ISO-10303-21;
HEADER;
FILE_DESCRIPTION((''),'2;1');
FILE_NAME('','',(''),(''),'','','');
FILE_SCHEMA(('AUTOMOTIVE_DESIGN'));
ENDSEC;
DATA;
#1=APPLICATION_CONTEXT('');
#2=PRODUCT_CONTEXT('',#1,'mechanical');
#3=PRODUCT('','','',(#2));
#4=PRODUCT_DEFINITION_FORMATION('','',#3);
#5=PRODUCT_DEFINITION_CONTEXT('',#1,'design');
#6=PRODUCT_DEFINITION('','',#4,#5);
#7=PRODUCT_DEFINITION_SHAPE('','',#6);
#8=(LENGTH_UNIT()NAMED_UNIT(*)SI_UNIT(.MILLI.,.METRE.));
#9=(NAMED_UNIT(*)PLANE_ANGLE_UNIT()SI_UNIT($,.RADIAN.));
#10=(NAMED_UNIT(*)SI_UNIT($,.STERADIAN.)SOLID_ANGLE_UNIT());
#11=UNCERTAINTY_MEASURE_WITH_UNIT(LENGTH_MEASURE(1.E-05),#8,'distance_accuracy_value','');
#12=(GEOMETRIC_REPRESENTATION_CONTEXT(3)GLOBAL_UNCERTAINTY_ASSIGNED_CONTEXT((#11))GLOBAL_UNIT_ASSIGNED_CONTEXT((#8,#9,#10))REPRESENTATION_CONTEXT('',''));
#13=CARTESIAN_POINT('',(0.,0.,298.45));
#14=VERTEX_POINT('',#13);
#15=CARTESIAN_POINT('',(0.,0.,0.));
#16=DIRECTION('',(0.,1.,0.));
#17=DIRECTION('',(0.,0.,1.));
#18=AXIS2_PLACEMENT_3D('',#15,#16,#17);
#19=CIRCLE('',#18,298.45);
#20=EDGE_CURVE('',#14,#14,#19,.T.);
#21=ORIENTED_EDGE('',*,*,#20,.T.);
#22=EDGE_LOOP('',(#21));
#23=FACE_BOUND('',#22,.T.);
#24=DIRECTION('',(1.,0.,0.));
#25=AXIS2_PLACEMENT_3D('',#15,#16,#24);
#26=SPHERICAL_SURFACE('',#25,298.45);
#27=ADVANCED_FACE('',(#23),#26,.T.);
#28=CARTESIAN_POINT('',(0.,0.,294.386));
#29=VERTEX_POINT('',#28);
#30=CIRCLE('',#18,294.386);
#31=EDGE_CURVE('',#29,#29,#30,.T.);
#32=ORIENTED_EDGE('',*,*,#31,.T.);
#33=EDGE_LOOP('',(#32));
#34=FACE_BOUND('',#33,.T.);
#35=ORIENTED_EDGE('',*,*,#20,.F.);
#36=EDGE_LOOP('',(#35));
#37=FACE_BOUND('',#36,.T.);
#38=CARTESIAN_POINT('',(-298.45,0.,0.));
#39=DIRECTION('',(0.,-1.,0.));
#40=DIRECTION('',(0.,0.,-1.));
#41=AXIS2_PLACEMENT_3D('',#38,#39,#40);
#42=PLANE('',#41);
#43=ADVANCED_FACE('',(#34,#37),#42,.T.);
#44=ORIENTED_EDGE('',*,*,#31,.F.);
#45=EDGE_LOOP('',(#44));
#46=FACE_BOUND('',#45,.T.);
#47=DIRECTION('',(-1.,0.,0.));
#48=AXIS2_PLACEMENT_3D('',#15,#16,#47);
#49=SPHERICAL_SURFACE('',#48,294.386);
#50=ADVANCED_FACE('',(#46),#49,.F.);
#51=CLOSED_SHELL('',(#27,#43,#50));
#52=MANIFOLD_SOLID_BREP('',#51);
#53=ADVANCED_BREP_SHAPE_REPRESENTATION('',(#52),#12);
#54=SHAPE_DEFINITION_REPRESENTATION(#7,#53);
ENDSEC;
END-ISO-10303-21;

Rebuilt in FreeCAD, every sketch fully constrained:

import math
import FreeCAD as App
import Part
import Sketcher

V = App.Vector
Q = App.Units.Quantity

doc = App.newDocument("Part")
params = doc.addObject("Spreadsheet::Sheet", "Params")
for row, (alias, value) in enumerate([
    ("sketch1_radius", "11.75 in"),
    ("sketch1_radius2", "11.59 in"),
    ("revolution_angle", "360 deg"),
], start=1):
    params.set(f"A{row}", alias)
    params.set(f"B{row}", "=" + value)
    params.setAlias(f"B{row}", alias)

body = doc.addObject("PartDesign::Body", "Body")

sketch1 = body.newObject("Sketcher::SketchObject", "Sketch")
sketch1.AttachmentSupport = (doc.getObject("XY_Plane"), [""])
sketch1.MapMode = "FlatFace"
sketch1.addGeometry([
    Part.LineSegment(V(0, 294.4, 0), V(0, 298.4, 0)),
    Part.ArcOfCircle(Part.Circle(V(0, 0, 0), V(0, 0, 1), 298.4), math.radians(90), math.radians(180)),
    Part.LineSegment(V(-298.4, 0, 0), V(-294.4, 0, 0)),
    Part.ArcOfCircle(Part.Circle(V(0, 0, 0), V(0, 0, 1), 294.4), math.radians(90), math.radians(180)),
], False)
sketch1.addConstraint([
    Sketcher.Constraint("Coincident", 0, 2, 1, 1),
    Sketcher.Constraint("Coincident", 1, 2, 2, 1),
    Sketcher.Constraint("Coincident", 2, 2, 3, 2),
    Sketcher.Constraint("Coincident", 3, 1, 0, 1),
    Sketcher.Constraint("Vertical", 0),
    Sketcher.Constraint("Horizontal", 2),
    Sketcher.Constraint("Coincident", 1, 3, -1, 1),
    Sketcher.Constraint("Coincident", 3, 3, -1, 1),
    Sketcher.Constraint("PointOnObject", 0, 2, -2),
    Sketcher.Constraint("PointOnObject", 1, 2, -1),
    Sketcher.Constraint("Radius", 1, Q("11.75 in")),
    Sketcher.Constraint("Radius", 3, Q("11.59 in")),
])
sketch1.setExpression("Constraints[10]", "Params.sketch1_radius")
sketch1.setExpression("Constraints[11]", "Params.sketch1_radius2")
revolution = body.newObject("PartDesign::Revolution", "Revolution")
revolution.Profile = sketch1
revolution.ReferenceAxis = (sketch1, ["V_Axis"])
revolution.setExpression("Angle", "Params.revolution_angle")

doc.recompute()
